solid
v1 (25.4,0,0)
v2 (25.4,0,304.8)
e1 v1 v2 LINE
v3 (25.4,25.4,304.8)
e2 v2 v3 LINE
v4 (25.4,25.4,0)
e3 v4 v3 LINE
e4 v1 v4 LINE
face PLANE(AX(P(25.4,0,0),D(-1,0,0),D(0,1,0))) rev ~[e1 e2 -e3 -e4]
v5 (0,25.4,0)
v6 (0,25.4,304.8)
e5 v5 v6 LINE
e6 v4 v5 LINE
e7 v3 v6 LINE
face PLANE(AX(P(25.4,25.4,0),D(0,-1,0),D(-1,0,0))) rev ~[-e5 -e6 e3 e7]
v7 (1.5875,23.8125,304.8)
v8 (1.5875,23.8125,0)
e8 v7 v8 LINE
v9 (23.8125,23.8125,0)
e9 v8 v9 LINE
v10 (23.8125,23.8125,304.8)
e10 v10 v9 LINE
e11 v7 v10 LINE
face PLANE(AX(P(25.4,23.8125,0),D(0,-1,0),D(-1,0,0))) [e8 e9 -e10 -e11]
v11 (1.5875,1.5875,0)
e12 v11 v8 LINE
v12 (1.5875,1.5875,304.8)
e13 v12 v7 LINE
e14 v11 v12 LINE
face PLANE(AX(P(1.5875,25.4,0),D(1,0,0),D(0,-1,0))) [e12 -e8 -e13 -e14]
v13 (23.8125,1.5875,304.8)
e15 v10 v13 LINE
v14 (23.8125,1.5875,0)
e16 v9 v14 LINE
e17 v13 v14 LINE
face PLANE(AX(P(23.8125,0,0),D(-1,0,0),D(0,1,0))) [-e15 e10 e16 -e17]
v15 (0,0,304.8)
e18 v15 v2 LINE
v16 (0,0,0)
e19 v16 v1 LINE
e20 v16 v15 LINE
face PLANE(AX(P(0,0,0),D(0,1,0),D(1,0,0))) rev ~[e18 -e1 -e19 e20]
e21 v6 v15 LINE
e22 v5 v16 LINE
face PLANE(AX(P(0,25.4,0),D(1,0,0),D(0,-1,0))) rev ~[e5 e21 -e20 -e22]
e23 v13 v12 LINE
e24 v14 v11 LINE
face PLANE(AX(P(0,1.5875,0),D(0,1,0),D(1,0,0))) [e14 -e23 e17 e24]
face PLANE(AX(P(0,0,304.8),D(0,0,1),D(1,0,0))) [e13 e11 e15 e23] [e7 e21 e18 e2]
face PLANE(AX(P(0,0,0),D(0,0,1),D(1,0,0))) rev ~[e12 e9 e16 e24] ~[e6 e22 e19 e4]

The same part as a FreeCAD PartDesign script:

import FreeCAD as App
import Part
import Sketcher

V = App.Vector
Q = App.Units.Quantity


def faces_at(feature, points):
    """Names of the faces that lie closest to the given points."""
    faces = feature.Shape.Faces
    near = lambda p: min(range(len(faces)), key=lambda i: faces[i].distToShape(Part.Vertex(*p))[0])
    return sorted({f"Face{near(p) + 1}" for p in points})

doc = App.newDocument("Part")
params = doc.addObject("Spreadsheet::Sheet", "Params")
for row, (alias, value) in enumerate([
    ("sketch1_width", "1 in"),
    ("pad1_length", "12 in"),
    ("thickness_wall", "0.0625 in"),
], start=1):
    params.set(f"A{row}", alias)
    params.set(f"B{row}", "=" + value)
    params.setAlias(f"B{row}", alias)

body = doc.addObject("PartDesign::Body", "Body")

sketch1 = doc.addObject("Sketcher::SketchObject", "Sketch")
body.addObject(sketch1)
sketch1.AttachmentSupport = (doc.XY_Plane, [""])
sketch1.MapMode = "FlatFace"
sketch1.addGeometry([
    Part.LineSegment(V(0, 25, 0), V(0, 0, 0)),
    Part.LineSegment(V(0, 0, 0), V(25, 0, 0)),
    Part.LineSegment(V(25, 0, 0), V(25, 25, 0)),
    Part.LineSegment(V(25, 25, 0), V(0, 25, 0)),
], False)
sketch1.addConstraint([
    Sketcher.Constraint("Coincident", 0, 2, 1, 1),
    Sketcher.Constraint("Coincident", 1, 2, 2, 1),
    Sketcher.Constraint("Coincident", 2, 2, 3, 1),
    Sketcher.Constraint("Coincident", 3, 2, 0, 1),
    Sketcher.Constraint("Vertical", 0),
    Sketcher.Constraint("Horizontal", 1),
    Sketcher.Constraint("Vertical", 2),
    Sketcher.Constraint("Horizontal", 3),
    Sketcher.Constraint("Coincident", 0, 2, -1, 1),
    Sketcher.Constraint("Equal", 3, 0),
    Sketcher.Constraint("DistanceX", 1, 1, 1, 2, Q("1 in")),
])
sketch1.setExpression("Constraints[10]", "Params.sketch1_width")
pad1 = doc.addObject("PartDesign::Pad", "Pad")
body.addObject(pad1)
pad1.Profile = sketch1
pad1.setExpression("Length", "Params.pad1_length")
doc.recompute()

thickness = doc.addObject("PartDesign::Thickness", "Thickness")
body.addObject(thickness)
thickness.Base = (pad1, faces_at(pad1, [(8.467, 16.933, 0), (8.467, 16.933, 304.8)]))
thickness.setExpression("Value", "Params.thickness_wall")
thickness.Reversed = True
thickness.Join = "Intersection"

doc.recompute()
